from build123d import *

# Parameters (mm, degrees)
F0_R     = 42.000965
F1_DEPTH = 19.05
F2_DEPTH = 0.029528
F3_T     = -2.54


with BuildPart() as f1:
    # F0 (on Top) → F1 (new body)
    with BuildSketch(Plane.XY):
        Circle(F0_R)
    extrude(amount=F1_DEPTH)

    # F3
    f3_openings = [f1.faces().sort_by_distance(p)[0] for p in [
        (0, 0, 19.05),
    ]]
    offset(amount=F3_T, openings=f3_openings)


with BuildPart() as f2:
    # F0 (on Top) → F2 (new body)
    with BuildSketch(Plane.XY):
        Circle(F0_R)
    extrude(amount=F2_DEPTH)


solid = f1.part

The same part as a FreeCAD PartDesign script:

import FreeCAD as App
import Part
import Sketcher
from FreeCAD import Vector


def faces_at(feature, points):
    """Names of the faces that lie closest to the given points."""
    faces = feature.Shape.Faces
    near = lambda p: min(range(len(faces)), key=lambda i: faces[i].distToShape(Part.Vertex(*p))[0])
    return sorted({f"Face{near(p) + 1}" for p in points})

doc = App.newDocument("Part")
params = doc.addObject("Spreadsheet::Sheet", "Params")
for row, (alias, value) in enumerate([
    ("pad1_length", "0.75 in"),
    ("thickness_wall", "0.1 in"),
    ("pad2_length", "0.029528 mm"),
], start=1):
    params.set(f"A{row}", alias)
    params.set(f"B{row}", "=" + value)
    params.setAlias(f"B{row}", alias)

body = doc.addObject("PartDesign::Body", "Body")

sketch1 = doc.addObject("Sketcher::SketchObject", "Sketch")
body.addObject(sketch1)
sketch1.AttachmentSupport = (doc.XY_Plane, [""])
sketch1.MapMode = "FlatFace"
sketch1.addGeometry(Part.Circle(Vector(0, 0, 0), Vector(0, 0, 1), 42), False)
sketch1.addConstraint(Sketcher.Constraint("Coincident", 0, 3, -1, 1))
sketch1.addConstraint(Sketcher.Constraint("Diameter", 0, 84.00193))
pad1 = doc.addObject("PartDesign::Pad", "Pad")
body.addObject(pad1)
pad1.Profile = sketch1
pad1.setExpression("Length", "Params.pad1_length")
doc.recompute()

thickness = doc.addObject("PartDesign::Thickness", "Thickness")
body.addObject(thickness)
thickness.Base = (pad1, faces_at(pad1, [(0, 0, 19.05)]))
thickness.setExpression("Value", "Params.thickness_wall")
thickness.Reversed = True
thickness.Join = "Arc"
body2 = doc.addObject("PartDesign::Body", "Body001")

sketch2 = doc.addObject("Sketcher::SketchObject", "Sketch001")
body2.addObject(sketch2)
sketch2.AttachmentSupport = (doc.getObject("XY_Plane001"), [""])
sketch2.MapMode = "FlatFace"
sketch2.addGeometry(Part.Circle(Vector(0, 0, 0), Vector(0, 0, 1), 42), False)
sketch2.addConstraint(Sketcher.Constraint("Coincident", 0, 3, -1, 1))
sketch2.addConstraint(Sketcher.Constraint("Diameter", 0, 84.00193))
pad2 = doc.addObject("PartDesign::Pad", "Pad001")
body2.addObject(pad2)
pad2.Profile = sketch2
pad2.setExpression("Length", "Params.pad2_length")
body2.Visibility = False

doc.recompute()
